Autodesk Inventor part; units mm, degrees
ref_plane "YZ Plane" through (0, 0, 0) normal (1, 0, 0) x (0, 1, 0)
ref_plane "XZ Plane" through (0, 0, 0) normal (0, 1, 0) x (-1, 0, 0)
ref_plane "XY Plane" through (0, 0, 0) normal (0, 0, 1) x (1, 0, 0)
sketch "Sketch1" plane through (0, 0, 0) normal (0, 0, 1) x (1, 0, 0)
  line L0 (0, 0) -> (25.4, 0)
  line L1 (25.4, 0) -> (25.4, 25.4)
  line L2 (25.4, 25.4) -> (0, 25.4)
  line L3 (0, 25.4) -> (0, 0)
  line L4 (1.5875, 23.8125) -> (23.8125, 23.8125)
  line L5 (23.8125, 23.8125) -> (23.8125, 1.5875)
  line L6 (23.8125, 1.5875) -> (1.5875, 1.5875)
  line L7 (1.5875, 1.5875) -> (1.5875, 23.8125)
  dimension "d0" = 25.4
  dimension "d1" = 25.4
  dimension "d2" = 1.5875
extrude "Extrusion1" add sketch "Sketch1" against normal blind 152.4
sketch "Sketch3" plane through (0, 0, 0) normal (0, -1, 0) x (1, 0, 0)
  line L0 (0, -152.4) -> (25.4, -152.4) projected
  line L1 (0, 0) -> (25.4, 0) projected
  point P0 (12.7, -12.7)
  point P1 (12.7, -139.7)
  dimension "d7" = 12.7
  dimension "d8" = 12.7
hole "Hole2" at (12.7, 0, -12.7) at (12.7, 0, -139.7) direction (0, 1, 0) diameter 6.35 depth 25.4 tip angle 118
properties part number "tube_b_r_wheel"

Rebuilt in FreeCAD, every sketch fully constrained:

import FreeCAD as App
import Part
import Sketcher
from FreeCAD import Vector
Q = App.Units.Quantity


def add_polygon(sketch, points):
    """Adds a closed chain of lines whose ends are joined by coincident constraints."""
    first, n = sketch.GeometryCount, len(points)
    for a, b in zip(points, points[1:] + points[:1]):
        sketch.addGeometry(Part.LineSegment(App.Vector(*a, 0), App.Vector(*b, 0)), False)
    for i in range(n):
        sketch.addConstraint(Sketcher.Constraint("Coincident", first + i, 2, first + (i + 1) % n, 1))

doc = App.newDocument("Part")
params = doc.addObject("Spreadsheet::Sheet", "Params")
for row, (alias, value) in enumerate([
    ("sketch1_width", "1 in"),
    ("pad1_length", "6 in"),
    ("sketch2_diameter", "0.25 in"),
    ("hole_diameter", "0.25 in"),
    ("hole_depth", "1 in"),
], start=1):
    params.set(f"A{row}", alias)
    params.set(f"B{row}", "=" + value)
    params.setAlias(f"B{row}", alias)

body = doc.addObject("PartDesign::Body", "Body")

# Sketch on XY plane
sketch1 = body.newObject("Sketcher::SketchObject", "Sketch")
sketch1.AttachmentSupport = (doc.getObject("XY_Plane"), [""])
sketch1.MapMode = "FlatFace"
add_polygon(sketch1, [(0, 25.4), (0, 0), (25.4, 0), (25.4, 25.4)])  # lines 0-3
add_polygon(sketch1, [(1.5875, 1.5875), (1.5875, 23.8125), (23.8125, 23.8125), (23.8125, 1.5875)])  # lines 4-7
sketch1.addConstraint([
    Sketcher.Constraint("Vertical", 0),
    Sketcher.Constraint("Horizontal", 1),
    Sketcher.Constraint("Vertical", 2),
    Sketcher.Constraint("Horizontal", 3),
    Sketcher.Constraint("Vertical", 4),
    Sketcher.Constraint("Horizontal", 5),
    Sketcher.Constraint("Vertical", 6),
    Sketcher.Constraint("Horizontal", 7),
    Sketcher.Constraint("Coincident", 0, 2, -1, 1),
    Sketcher.Constraint("Equal", 3, 0),
    Sketcher.Constraint("Equal", 7, 4),
    Sketcher.Constraint("DistanceX", 1, 1, 1, 2, Q("1 in")),
    Sketcher.Constraint("DistanceX", -1, 1, 4, 2, Q("0.0625 in")),
    Sketcher.Constraint("DistanceY", -1, 1, 6, 2, Q("0.0625 in")),
    Sketcher.Constraint("DistanceY", 4, 2, 3, 2, Q("0.0625 in")),
])
sketch1.setExpression("Constraints[19]", "Params.sketch1_width")
pad1 = body.newObject("PartDesign::Pad", "Pad")
pad1.Profile = sketch1
pad1.setExpression("Length", "Params.pad1_length")
pad1.Reversed = True

# Sketch on XZ plane
sketch2 = body.newObject("Sketcher::SketchObject", "Sketch001")
sketch2.AttachmentSupport = (doc.getObject("XZ_Plane"), [""])
sketch2.MapMode = "FlatFace"
sketch2.addGeometry([
    Part.Circle(Vector(12.7, -12.7, 0), Vector(0, 0, 1), 3.175),
    Part.Circle(Vector(12.7, -139.7, 0), Vector(0, 0, 1), 3.175),
], False)
sketch2.addConstraint([
    Sketcher.Constraint("Equal", 0, 1),
    Sketcher.Constraint("Vertical", 0, 3, 1, 3),
    Sketcher.Constraint("Diameter", 0, Q("0.25 in")),
    Sketcher.Constraint("DistanceY", 1, 3, 0, 3, Q("5 in")),
    Sketcher.Constraint("DistanceX", -1, 1, 0, 3, Q("0.5 in")),
    Sketcher.Constraint("DistanceY", 0, 3, -1, 1, Q("0.5 in")),
])
sketch2.setExpression("Constraints[2]", "Params.sketch2_diameter")
doc.recompute()
hole = body.newObject("PartDesign::Hole", "Hole")
hole.Profile = sketch2
hole.ThreadType = "None"
hole.setExpression("Diameter", "Params.hole_diameter")
hole.DepthType = "Dimension"
hole.setExpression("Depth", "Params.hole_depth")
hole.DrillPoint = "Angled"
hole.DrillPointAngle = 118

doc.recompute()
